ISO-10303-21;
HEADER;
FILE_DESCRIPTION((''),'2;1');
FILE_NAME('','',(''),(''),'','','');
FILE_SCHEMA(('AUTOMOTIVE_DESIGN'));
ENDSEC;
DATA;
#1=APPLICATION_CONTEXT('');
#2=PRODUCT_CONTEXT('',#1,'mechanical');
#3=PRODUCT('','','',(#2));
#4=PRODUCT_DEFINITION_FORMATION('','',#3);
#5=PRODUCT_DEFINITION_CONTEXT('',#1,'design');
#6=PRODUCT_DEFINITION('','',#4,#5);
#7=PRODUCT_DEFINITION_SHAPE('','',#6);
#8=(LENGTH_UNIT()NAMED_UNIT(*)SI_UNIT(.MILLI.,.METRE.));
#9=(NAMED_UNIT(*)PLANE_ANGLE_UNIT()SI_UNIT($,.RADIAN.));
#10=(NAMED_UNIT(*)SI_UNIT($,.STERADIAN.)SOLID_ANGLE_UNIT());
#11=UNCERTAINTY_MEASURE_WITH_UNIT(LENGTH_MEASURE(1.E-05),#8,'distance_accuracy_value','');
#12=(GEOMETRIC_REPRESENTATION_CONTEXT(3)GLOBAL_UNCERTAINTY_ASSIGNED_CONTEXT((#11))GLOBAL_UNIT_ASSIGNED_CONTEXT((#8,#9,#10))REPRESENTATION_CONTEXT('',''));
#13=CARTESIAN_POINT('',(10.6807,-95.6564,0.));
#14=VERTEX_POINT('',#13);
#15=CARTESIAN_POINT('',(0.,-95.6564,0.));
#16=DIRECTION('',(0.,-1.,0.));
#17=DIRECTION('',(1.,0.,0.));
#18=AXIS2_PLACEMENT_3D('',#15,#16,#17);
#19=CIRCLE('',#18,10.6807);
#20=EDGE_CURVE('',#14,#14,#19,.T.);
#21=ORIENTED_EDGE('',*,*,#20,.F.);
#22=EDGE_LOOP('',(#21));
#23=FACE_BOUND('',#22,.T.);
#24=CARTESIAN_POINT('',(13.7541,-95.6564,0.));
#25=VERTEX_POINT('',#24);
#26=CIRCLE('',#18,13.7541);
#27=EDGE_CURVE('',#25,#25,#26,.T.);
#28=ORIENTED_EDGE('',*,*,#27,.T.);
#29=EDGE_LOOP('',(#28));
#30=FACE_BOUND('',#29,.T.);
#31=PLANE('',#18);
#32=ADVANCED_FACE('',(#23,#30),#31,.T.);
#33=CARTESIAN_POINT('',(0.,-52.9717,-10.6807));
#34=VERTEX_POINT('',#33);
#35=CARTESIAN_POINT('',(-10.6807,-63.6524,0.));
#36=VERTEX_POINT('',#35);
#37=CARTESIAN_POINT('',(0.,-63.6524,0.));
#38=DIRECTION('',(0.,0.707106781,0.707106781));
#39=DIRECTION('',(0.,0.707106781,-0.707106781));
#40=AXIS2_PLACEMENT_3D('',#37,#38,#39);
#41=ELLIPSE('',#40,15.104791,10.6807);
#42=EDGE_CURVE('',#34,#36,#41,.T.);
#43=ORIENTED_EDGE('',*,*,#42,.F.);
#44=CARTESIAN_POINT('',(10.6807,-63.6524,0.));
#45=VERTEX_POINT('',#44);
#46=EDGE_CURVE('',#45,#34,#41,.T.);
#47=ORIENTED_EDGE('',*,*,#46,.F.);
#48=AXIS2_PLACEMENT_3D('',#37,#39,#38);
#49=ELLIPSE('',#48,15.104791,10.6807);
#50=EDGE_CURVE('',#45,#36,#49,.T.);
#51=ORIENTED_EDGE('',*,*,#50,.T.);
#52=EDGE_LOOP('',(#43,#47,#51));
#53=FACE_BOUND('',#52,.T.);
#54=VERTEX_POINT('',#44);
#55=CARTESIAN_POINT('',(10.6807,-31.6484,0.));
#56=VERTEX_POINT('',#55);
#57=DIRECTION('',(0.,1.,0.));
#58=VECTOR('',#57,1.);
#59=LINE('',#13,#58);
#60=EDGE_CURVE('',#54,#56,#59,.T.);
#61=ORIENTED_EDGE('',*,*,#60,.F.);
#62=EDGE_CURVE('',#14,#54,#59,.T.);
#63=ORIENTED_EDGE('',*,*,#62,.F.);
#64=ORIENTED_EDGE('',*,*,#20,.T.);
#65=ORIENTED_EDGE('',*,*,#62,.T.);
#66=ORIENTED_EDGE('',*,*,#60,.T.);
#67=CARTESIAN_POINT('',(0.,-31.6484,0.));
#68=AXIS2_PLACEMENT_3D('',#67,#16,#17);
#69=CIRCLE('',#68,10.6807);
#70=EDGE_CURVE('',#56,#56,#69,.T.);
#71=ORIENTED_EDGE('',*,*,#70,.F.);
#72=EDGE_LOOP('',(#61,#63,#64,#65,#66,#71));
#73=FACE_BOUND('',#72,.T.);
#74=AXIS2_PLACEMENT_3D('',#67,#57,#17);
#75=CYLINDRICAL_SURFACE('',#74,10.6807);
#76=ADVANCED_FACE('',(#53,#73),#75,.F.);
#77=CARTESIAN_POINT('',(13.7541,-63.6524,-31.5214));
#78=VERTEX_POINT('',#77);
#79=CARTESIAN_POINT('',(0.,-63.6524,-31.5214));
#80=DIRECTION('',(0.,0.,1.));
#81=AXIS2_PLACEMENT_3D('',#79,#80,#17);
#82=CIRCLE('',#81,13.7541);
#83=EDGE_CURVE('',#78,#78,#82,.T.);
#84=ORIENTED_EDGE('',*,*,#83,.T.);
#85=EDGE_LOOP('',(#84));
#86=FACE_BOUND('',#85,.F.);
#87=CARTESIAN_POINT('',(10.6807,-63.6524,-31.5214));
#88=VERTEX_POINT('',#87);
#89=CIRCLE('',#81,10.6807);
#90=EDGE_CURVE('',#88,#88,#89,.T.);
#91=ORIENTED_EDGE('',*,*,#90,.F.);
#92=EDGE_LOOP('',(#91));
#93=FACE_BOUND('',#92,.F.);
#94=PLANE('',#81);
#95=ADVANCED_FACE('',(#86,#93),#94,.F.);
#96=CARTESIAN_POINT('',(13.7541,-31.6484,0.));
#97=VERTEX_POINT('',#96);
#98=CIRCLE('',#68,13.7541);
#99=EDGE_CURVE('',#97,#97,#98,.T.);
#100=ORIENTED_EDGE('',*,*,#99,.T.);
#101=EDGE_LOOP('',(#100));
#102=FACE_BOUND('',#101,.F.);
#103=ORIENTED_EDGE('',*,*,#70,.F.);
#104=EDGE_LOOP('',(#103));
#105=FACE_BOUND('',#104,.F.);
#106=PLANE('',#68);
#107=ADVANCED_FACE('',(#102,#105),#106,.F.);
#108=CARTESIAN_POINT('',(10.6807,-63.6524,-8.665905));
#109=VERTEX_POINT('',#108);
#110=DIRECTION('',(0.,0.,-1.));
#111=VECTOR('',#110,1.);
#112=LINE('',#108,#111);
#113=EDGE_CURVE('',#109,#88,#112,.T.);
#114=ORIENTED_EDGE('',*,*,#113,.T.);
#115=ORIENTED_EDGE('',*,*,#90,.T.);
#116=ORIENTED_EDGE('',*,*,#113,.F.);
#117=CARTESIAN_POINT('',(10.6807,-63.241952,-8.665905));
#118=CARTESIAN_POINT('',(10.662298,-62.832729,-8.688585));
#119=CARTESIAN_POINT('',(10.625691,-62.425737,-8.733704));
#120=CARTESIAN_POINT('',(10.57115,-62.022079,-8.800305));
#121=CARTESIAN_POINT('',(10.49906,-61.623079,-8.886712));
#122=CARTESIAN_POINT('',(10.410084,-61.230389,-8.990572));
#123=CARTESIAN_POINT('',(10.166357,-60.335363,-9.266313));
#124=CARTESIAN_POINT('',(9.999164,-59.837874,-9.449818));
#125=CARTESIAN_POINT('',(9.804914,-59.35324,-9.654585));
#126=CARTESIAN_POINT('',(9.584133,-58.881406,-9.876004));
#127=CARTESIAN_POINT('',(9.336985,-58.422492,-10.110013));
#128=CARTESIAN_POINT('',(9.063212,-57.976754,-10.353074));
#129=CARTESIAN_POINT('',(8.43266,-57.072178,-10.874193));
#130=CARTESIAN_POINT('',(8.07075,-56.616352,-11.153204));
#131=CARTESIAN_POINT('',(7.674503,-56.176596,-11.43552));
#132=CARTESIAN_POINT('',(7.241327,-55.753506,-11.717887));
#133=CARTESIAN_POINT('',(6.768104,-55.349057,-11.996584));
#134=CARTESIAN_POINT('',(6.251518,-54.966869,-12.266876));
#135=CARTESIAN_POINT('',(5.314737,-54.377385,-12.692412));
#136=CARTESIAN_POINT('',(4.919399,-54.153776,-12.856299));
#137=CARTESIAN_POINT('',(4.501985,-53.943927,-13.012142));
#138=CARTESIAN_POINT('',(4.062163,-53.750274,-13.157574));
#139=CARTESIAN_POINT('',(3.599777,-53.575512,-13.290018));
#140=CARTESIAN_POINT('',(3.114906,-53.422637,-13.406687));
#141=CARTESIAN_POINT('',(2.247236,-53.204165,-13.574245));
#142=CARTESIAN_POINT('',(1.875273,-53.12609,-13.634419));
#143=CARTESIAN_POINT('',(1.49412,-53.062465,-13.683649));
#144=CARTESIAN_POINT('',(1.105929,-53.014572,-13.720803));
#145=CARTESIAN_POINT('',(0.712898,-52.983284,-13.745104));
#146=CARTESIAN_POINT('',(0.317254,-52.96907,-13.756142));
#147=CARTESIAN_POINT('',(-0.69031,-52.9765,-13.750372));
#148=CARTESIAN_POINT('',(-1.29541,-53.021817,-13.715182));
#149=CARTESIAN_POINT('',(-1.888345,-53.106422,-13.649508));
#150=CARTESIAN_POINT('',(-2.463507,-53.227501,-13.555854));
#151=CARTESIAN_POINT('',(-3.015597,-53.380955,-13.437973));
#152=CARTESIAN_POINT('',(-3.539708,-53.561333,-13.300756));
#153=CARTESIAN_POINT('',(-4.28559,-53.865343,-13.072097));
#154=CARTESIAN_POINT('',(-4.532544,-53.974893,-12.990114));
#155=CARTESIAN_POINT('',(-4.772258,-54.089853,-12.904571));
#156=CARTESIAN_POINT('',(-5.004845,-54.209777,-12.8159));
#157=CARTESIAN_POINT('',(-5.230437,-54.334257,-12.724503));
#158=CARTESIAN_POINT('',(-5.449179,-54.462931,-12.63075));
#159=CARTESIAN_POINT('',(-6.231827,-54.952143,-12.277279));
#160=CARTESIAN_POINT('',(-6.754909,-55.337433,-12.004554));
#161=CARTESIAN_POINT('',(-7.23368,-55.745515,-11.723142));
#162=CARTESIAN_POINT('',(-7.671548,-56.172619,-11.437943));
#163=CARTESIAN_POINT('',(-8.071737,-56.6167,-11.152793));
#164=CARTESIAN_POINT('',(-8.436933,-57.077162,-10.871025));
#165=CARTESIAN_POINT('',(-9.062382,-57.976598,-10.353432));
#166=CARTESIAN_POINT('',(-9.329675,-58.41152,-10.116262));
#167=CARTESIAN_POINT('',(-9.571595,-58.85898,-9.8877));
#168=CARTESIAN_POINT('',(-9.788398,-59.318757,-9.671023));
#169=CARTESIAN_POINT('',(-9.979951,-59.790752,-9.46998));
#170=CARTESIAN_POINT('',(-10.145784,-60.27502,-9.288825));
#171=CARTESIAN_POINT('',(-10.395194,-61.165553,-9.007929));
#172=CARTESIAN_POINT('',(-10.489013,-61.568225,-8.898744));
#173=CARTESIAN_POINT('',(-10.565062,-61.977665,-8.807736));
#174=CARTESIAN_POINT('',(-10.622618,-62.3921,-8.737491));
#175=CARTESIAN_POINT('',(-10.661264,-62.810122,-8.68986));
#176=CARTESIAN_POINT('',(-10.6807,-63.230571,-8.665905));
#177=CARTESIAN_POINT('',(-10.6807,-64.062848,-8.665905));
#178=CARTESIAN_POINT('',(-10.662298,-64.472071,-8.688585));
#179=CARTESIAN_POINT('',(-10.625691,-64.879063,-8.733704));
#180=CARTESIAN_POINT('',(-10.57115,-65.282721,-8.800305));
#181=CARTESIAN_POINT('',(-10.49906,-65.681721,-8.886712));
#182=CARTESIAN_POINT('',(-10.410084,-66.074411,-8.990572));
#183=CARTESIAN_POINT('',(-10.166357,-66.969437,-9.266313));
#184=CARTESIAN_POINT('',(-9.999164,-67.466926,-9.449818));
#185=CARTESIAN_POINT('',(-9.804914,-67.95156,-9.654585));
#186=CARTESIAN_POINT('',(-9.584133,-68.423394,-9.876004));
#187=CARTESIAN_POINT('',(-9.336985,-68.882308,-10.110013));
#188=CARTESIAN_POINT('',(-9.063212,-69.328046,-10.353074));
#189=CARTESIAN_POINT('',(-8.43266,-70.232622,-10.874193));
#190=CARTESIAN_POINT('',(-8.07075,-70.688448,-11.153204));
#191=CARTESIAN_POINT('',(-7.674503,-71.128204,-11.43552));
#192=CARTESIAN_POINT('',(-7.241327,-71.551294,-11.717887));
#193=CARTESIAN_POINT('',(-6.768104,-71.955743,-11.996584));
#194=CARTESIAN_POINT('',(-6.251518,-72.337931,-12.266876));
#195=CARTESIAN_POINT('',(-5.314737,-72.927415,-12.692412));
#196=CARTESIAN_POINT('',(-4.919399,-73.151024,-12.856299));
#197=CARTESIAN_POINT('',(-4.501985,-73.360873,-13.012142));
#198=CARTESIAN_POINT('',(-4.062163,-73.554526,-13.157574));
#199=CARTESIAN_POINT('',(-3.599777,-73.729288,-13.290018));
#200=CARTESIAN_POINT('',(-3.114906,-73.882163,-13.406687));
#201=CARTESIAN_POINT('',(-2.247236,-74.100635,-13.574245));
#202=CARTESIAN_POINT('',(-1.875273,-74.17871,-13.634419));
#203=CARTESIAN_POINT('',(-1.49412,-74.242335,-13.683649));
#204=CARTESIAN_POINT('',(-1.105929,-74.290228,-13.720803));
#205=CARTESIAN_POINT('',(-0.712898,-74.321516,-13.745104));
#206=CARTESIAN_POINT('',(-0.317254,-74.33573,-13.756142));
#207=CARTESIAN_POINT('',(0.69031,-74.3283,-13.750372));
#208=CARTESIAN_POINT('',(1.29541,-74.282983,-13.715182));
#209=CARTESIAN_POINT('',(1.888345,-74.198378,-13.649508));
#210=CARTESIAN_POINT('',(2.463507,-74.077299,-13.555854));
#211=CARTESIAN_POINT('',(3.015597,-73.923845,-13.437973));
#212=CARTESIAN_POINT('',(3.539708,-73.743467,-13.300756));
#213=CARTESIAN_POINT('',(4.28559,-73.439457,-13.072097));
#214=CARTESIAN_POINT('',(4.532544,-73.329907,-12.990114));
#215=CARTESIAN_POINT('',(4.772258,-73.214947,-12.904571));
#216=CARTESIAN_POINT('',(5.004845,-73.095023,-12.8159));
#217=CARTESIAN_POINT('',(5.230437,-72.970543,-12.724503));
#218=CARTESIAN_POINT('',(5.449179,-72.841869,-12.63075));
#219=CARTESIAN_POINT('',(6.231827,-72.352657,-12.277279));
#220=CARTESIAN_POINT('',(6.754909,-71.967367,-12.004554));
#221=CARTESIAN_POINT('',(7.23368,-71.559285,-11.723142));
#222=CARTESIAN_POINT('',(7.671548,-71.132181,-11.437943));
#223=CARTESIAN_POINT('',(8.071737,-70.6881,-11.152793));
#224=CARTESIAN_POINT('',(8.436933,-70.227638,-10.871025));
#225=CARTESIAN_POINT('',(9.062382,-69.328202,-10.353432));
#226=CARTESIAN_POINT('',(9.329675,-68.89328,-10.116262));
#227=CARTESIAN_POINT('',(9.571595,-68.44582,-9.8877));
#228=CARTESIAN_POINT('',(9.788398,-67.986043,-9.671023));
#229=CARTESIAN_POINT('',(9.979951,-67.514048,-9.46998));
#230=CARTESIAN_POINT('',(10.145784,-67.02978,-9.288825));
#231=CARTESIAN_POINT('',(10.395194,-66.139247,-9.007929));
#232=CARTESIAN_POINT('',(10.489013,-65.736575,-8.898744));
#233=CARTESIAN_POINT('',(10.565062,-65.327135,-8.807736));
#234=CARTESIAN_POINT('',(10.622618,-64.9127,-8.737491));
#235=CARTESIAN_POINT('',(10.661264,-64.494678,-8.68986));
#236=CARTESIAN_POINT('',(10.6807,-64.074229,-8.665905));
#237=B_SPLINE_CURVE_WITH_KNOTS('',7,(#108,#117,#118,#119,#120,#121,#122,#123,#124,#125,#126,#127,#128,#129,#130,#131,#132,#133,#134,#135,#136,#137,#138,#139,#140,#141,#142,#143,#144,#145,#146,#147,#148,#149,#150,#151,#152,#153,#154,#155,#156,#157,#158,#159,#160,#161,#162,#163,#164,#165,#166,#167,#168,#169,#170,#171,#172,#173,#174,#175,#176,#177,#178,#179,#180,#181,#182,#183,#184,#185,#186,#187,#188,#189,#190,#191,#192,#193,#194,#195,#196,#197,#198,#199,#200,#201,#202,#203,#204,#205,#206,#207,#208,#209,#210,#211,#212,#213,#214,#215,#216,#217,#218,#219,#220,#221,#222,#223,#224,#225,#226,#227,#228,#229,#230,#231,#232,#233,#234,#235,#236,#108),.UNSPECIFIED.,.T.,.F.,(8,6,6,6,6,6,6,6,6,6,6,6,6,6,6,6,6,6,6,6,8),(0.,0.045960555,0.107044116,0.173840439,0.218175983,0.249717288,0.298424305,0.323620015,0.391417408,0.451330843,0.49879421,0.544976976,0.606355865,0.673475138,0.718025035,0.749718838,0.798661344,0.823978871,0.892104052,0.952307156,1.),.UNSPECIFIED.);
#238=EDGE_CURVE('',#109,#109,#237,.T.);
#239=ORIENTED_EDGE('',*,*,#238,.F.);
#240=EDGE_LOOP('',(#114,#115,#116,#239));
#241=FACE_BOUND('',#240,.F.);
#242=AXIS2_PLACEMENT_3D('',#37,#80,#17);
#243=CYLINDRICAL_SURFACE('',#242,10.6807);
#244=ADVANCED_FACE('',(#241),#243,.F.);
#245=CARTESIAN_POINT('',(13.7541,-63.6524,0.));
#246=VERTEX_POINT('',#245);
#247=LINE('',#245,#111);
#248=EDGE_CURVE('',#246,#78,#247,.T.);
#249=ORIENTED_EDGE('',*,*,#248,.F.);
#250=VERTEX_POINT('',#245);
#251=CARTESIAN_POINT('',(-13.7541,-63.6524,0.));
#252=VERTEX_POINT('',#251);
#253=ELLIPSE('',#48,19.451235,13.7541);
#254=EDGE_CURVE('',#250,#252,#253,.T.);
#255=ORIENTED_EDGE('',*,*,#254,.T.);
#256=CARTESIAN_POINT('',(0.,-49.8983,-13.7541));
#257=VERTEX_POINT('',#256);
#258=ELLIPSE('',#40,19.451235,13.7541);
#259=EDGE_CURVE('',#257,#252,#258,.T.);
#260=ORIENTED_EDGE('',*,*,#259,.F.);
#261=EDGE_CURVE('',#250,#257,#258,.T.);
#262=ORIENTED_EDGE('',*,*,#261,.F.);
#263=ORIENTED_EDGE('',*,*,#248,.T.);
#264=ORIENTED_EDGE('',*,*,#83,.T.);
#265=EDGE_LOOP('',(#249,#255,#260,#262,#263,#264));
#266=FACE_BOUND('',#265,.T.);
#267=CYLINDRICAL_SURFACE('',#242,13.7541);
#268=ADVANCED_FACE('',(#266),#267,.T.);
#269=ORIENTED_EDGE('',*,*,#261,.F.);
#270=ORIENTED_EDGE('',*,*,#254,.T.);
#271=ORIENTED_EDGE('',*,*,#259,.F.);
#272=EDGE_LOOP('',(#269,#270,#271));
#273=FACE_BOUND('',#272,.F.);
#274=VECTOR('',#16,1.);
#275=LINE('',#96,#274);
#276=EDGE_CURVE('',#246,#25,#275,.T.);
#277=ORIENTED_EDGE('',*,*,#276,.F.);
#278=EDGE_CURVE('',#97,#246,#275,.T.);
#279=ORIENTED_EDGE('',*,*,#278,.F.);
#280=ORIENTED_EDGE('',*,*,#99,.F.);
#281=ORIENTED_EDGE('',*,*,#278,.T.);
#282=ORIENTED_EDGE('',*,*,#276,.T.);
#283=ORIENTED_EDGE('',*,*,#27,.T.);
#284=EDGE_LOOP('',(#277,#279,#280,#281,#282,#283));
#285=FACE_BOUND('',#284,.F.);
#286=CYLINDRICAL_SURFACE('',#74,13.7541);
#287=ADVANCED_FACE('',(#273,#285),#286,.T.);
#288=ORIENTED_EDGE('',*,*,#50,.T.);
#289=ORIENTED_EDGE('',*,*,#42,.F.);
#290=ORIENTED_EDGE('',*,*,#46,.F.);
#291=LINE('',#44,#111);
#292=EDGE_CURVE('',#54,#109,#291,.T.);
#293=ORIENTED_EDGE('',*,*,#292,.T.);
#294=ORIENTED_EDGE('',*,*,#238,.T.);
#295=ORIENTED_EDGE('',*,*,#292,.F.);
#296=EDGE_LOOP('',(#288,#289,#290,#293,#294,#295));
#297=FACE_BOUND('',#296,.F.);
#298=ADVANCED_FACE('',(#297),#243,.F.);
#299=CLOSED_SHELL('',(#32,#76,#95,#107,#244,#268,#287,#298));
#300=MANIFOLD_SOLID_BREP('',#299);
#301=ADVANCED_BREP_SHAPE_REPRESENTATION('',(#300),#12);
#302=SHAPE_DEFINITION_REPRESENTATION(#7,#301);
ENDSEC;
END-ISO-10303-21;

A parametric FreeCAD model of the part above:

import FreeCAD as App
import Part
import Sketcher
from FreeCAD import Vector
Q = App.Units.Quantity

doc = App.newDocument("Part")
body = doc.addObject("PartDesign::Body", "Body")

# Sketch on XZ plane
sketch1 = doc.addObject("Sketcher::SketchObject", "Sketch")
body.addObject(sketch1)
sketch1.AttachmentSupport = (doc.XZ_Plane, [""])
sketch1.MapMode = "FlatFace"
sketch1.AttachmentOffset = App.Placement(Vector(0, 0, 1.246 * 25.4), App.Rotation())
sketch1.addGeometry(Part.Circle(Vector(0, 0, 0), Vector(0, 0, 1), 14), False)
sketch1.addGeometry(Part.Circle(Vector(0, 0, 0), Vector(0, 0, 1), 11), False)
sketch1.addConstraint(Sketcher.Constraint("Coincident", 0, 3, -1, 1))
sketch1.addConstraint(Sketcher.Constraint("Coincident", 1, 3, -1, 1))
sketch1.addConstraint(Sketcher.Constraint("Diameter", 0, Q("1.083 in")))
sketch1.addConstraint(Sketcher.Constraint("Diameter", 1, Q("0.841 in")))
pad1 = doc.addObject("PartDesign::Pad", "Pad")
body.addObject(pad1)
pad1.Profile = sketch1
pad1.Length = Q("2.52 in")

# Sketch on XY plane
sketch2 = doc.addObject("Sketcher::SketchObject", "Sketch001")
body.addObject(sketch2)
sketch2.AttachmentSupport = (doc.XY_Plane, [""])
sketch2.MapMode = "FlatFace"
sketch2.addGeometry(Part.Circle(Vector(0, -64, 0), Vector(0, 0, 1), 14), False)
sketch2.addGeometry(Part.Circle(Vector(0, -64, 0), Vector(0, 0, 1), 11), False)
sketch2.addConstraint(Sketcher.Constraint("Coincident", 1, 3, 0, 3))
sketch2.addConstraint(Sketcher.Constraint("PointOnObject", 0, 3, -2))
sketch2.addConstraint(Sketcher.Constraint("Diameter", 0, Q("1.083 in")))
sketch2.addConstraint(Sketcher.Constraint("Diameter", 1, Q("0.841 in")))
sketch2.addConstraint(Sketcher.Constraint("DistanceY", 0, 3, -1, 1, Q("2.506 in")))
pad2 = doc.addObject("PartDesign::Pad", "Pad001")
body.addObject(pad2)
pad2.Profile = sketch2
pad2.Length = Q("1.241 in")
pad2.Reversed = True

# Sketch on XZ plane
sketch3 = doc.addObject("Sketcher::SketchObject", "Sketch002")
body.addObject(sketch3)
sketch3.AttachmentSupport = (doc.XZ_Plane, [""])
sketch3.MapMode = "FlatFace"
sketch3.AttachmentOffset = App.Placement(Vector(0, 0, 1.246 * 25.4), App.Rotation())
sketch3.addGeometry(Part.Circle(Vector(0, 0, 0), Vector(0, 0, 1), 11), False)
sketch3.addConstraint(Sketcher.Constraint("Coincident", 0, 3, -1, 1))
sketch3.addConstraint(Sketcher.Constraint("Diameter", 0, Q("0.841 in")))
pocket1 = doc.addObject("PartDesign::Pocket", "Pocket")
body.addObject(pocket1)
pocket1.Profile = sketch3
pocket1.Type = "ThroughAll"
pocket1.Reversed = True

# Sketch on XY plane
sketch4 = doc.addObject("Sketcher::SketchObject", "Sketch003")
body.addObject(sketch4)
sketch4.AttachmentSupport = (doc.XY_Plane, [""])
sketch4.MapMode = "FlatFace"
sketch4.addGeometry(Part.Circle(Vector(0, -64, 0), Vector(0, 0, 1), 11), False)
sketch4.addConstraint(Sketcher.Constraint("PointOnObject", 0, 3, -2))
sketch4.addConstraint(Sketcher.Constraint("Diameter", 0, Q("0.841 in")))
sketch4.addConstraint(Sketcher.Constraint("DistanceY", 0, 3, -1, 1, Q("2.506 in")))
pocket2 = doc.addObject("PartDesign::Pocket", "Pocket001")
body.addObject(pocket2)
pocket2.Profile = sketch4
pocket2.Length = Q("1 in")

doc.recompute()
